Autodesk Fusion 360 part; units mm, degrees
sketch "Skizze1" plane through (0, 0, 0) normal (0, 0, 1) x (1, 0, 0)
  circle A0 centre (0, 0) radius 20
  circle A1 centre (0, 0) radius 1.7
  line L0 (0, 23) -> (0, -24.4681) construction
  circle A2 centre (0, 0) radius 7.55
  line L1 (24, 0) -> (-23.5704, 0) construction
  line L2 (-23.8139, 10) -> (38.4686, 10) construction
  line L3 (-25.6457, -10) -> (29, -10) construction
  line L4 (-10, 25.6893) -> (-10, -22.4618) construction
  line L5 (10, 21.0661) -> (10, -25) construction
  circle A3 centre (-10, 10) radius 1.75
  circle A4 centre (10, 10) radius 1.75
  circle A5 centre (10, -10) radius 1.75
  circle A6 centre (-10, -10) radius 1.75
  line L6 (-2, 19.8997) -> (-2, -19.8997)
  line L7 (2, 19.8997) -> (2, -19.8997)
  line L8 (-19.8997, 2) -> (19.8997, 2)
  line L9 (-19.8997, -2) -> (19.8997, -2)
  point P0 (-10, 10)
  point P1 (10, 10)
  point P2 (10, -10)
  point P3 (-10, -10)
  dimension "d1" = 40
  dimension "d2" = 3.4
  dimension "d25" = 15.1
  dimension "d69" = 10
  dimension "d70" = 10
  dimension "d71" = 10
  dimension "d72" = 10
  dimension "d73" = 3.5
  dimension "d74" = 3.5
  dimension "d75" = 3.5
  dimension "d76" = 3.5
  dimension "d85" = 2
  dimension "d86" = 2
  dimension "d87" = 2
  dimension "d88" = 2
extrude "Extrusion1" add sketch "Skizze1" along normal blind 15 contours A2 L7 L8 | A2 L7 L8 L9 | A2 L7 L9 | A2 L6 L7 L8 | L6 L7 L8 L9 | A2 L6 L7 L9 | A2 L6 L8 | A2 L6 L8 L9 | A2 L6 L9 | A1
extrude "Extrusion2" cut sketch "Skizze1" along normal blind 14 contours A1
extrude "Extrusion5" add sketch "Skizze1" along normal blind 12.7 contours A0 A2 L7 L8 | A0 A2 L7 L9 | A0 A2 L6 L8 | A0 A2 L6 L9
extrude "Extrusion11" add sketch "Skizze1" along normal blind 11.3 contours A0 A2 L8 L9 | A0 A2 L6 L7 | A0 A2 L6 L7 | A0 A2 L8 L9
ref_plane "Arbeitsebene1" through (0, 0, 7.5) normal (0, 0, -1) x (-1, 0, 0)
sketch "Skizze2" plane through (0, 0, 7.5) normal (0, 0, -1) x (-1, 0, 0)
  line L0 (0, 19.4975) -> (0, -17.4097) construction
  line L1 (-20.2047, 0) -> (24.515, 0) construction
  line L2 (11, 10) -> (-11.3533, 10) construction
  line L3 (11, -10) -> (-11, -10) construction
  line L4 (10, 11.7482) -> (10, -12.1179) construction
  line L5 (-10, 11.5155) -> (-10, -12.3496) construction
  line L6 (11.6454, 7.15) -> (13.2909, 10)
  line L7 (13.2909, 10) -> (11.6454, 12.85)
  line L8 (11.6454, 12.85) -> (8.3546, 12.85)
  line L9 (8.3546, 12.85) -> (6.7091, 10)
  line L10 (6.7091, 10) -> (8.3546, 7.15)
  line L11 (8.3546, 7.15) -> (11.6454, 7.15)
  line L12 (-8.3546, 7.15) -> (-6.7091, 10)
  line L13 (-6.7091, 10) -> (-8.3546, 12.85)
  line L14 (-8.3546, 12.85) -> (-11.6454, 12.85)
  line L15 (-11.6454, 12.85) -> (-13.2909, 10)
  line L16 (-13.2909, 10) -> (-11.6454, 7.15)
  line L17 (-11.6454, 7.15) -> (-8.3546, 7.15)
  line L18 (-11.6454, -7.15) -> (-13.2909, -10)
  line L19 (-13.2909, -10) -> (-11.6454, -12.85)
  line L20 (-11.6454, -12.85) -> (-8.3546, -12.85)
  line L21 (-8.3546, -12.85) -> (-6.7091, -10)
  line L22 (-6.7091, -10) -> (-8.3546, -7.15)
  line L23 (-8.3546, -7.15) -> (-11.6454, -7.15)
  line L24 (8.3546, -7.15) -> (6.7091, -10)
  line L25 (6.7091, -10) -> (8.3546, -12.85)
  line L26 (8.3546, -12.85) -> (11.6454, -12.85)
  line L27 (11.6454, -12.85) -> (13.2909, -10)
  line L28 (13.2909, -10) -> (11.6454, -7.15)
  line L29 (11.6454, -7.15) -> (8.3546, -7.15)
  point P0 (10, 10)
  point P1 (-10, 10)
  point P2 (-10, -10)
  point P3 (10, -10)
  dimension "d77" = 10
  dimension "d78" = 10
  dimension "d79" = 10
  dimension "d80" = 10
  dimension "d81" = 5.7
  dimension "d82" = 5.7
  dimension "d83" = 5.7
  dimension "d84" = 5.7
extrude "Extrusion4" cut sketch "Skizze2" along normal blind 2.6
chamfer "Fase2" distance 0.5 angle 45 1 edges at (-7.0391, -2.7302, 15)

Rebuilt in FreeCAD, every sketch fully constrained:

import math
import FreeCAD as App
import Part
import Sketcher

V = App.Vector
Q = App.Units.Quantity


def edges_at(feature, points):
    """Names of the edges that pass closest to the given points."""
    edges = feature.Shape.Edges
    near = lambda p: min(range(len(edges)), key=lambda i: edges[i].distToShape(Part.Vertex(*p))[0])
    return sorted({f"Edge{near(p) + 1}" for p in points})

doc = App.newDocument("Part")
body = doc.addObject("PartDesign::Body", "Body")

sketch1 = body.newObject("Sketcher::SketchObject", "Sketch")
sketch1.AttachmentSupport = (doc.getObject("XY_Plane"), [""])
sketch1.MapMode = "FlatFace"
sketch1.addGeometry(Part.Circle(V(0, 0, 0), V(0, 0, 1), 8), False)
sketch1.addConstraint([
    Sketcher.Constraint("Coincident", 0, 3, -1, 1),
    Sketcher.Constraint("Diameter", 0, Q("15.1 mm")),
])
pad1 = body.newObject("PartDesign::Pad", "Pad")
pad1.Profile = sketch1
pad1.Length = 15

sketch2 = body.newObject("Sketcher::SketchObject", "Sketch001")
sketch2.AttachmentSupport = (doc.getObject("XY_Plane"), [""])
sketch2.MapMode = "FlatFace"
sketch2.addGeometry(Part.Circle(V(0, 0, 0), V(0, 0, 1), 1.7), False)
sketch2.addConstraint([
    Sketcher.Constraint("Coincident", 0, 3, -1, 1),
    Sketcher.Constraint("Diameter", 0, Q("3.4 mm")),
])
pocket1 = body.newObject("PartDesign::Pocket", "Pocket")
pocket1.Profile = sketch2
pocket1.Length = 14
pocket1.Reversed = True

sketch3 = body.newObject("Sketcher::SketchObject", "Sketch002")
sketch3.AttachmentSupport = (doc.getObject("XY_Plane"), [""])
sketch3.MapMode = "FlatFace"
sketch3.addGeometry([
    Part.LineSegment(V(7.3, 2, 0), V(19.9, 2, 0)),
    Part.ArcOfCircle(Part.Circle(V(0, 0, 0), V(0, 0, 1), 20), math.radians(6), math.radians(84)),
    Part.LineSegment(V(2, 19.9, 0), V(2, 7.3, 0)),
    Part.ArcOfCircle(Part.Circle(V(0, 0, 0), V(0, 0, 1), 7.5), math.radians(15), math.radians(75)),
    Part.Circle(V(10, 10, 0), V(0, 0, 1), 1.8),
    Part.ArcOfCircle(Part.Circle(V(0, 0, 0), V(0, 0, 1), 20), math.radians(-84), math.radians(-6)),
    Part.LineSegment(V(19.9, -2, 0), V(7.3, -2, 0)),
    Part.ArcOfCircle(Part.Circle(V(0, 0, 0), V(0, 0, 1), 7.5), math.radians(-75), math.radians(-15)),
    Part.LineSegment(V(2, -7.3, 0), V(2, -19.9, 0)),
    Part.Circle(V(10, -10, 0), V(0, 0, 1), 1.8),
    Part.LineSegment(V(-2, 7.3, 0), V(-2, 19.9, 0)),
    Part.ArcOfCircle(Part.Circle(V(0, 0, 0), V(0, 0, 1), 20), math.radians(96), math.radians(174)),
    Part.LineSegment(V(-19.9, 2, 0), V(-7.3, 2, 0)),
    Part.ArcOfCircle(Part.Circle(V(0, 0, 0), V(0, 0, 1), 7.5), math.radians(105), math.radians(165)),
    Part.Circle(V(-10, 10, 0), V(0, 0, 1), 1.8),
    Part.ArcOfCircle(Part.Circle(V(0, 0, 0), V(0, 0, 1), 20), math.radians(-174), math.radians(-96)),
    Part.LineSegment(V(-2, -19.9, 0), V(-2, -7.3, 0)),
    Part.ArcOfCircle(Part.Circle(V(0, 0, 0), V(0, 0, 1), 7.5), math.radians(-165), math.radians(-105)),
    Part.LineSegment(V(-7.3, -2, 0), V(-19.9, -2, 0)),
    Part.Circle(V(-10, -10, 0), V(0, 0, 1), 1.8),
], False)
sketch3.addConstraint([
    Sketcher.Constraint("Coincident", 0, 2, 1, 1),
    Sketcher.Constraint("Coincident", 1, 2, 2, 1),
    Sketcher.Constraint("Coincident", 2, 2, 3, 2),
    Sketcher.Constraint("Coincident", 3, 1, 0, 1),
    Sketcher.Constraint("Coincident", 5, 2, 6, 1),
    Sketcher.Constraint("Coincident", 6, 2, 7, 2),
    Sketcher.Constraint("Coincident", 7, 1, 8, 1),
    Sketcher.Constraint("Coincident", 8, 2, 5, 1),
    Sketcher.Constraint("Coincident", 10, 2, 11, 1),
    Sketcher.Constraint("Coincident", 11, 2, 12, 1),
    Sketcher.Constraint("Coincident", 12, 2, 13, 2),
    Sketcher.Constraint("Coincident", 13, 1, 10, 1),
    Sketcher.Constraint("Coincident", 15, 2, 16, 1),
    Sketcher.Constraint("Coincident", 16, 2, 17, 2),
    Sketcher.Constraint("Coincident", 17, 1, 18, 1),
    Sketcher.Constraint("Coincident", 18, 2, 15, 1),
    Sketcher.Constraint("Horizontal", 0),
    Sketcher.Constraint("Vertical", 2),
    Sketcher.Constraint("Horizontal", 6),
    Sketcher.Constraint("Vertical", 8),
    Sketcher.Constraint("Vertical", 10),
    Sketcher.Constraint("Horizontal", 12),
    Sketcher.Constraint("Vertical", 16),
    Sketcher.Constraint("Horizontal", 18),
    Sketcher.Constraint("Coincident", 1, 3, -1, 1),
    Sketcher.Constraint("Coincident", 3, 3, -1, 1),
    Sketcher.Constraint("Coincident", 5, 3, -1, 1),
    Sketcher.Constraint("Coincident", 7, 3, -1, 1),
    Sketcher.Constraint("Coincident", 11, 3, -1, 1),
    Sketcher.Constraint("Coincident", 13, 3, -1, 1),
    Sketcher.Constraint("Coincident", 15, 3, -1, 1),
    Sketcher.Constraint("Coincident", 17, 3, -1, 1),
    Sketcher.Constraint("Equal", 1, 5),
    Sketcher.Constraint("Equal", 3, 7),
    Sketcher.Constraint("Equal", 4, 9),
    Sketcher.Constraint("Equal", 5, 11),
    Sketcher.Constraint("Equal", 7, 13),
    Sketcher.Constraint("Equal", 9, 14),
    Sketcher.Constraint("Equal", 11, 15),
    Sketcher.Constraint("Equal", 13, 17),
    Sketcher.Constraint("Equal", 14, 19),
    Sketcher.Constraint("Symmetric", 9, 3, 14, 3, -1, 1),
    Sketcher.Constraint("Symmetric", 4, 3, 19, 3, -1, 1),
    Sketcher.Constraint("Symmetric", 4, 3, 14, 3, -2),
    Sketcher.Constraint("Horizontal", 1, 2, 10, 2),
    Sketcher.Constraint("Horizontal", 3, 1, 11, 2),
    Sketcher.Constraint("Horizontal", 8, 2, 15, 2),
    Sketcher.Constraint("Horizontal", 6, 2, 17, 1),
    Sketcher.Constraint("Vertical", 0, 2, 5, 2),
    Sketcher.Constraint("Vertical", 2, 2, 7, 1),
    Sketcher.Constraint("Equal", 18, 2),
    Sketcher.Constraint("Radius", 1, Q("20 mm")),
    Sketcher.Constraint("Diameter", 4, Q("3.5 mm")),
    Sketcher.Constraint("Radius", 3, Q("7.55 mm")),
    Sketcher.Constraint("DistanceX", -1, 1, 4, 3, Q("10 mm")),
    Sketcher.Constraint("DistanceY", -1, 1, 4, 3, Q("10 mm")),
    Sketcher.Constraint("DistanceY", -1, 1, 0, 2, Q("2 mm")),
])
pad2 = body.newObject("PartDesign::Pad", "Pad001")
pad2.Profile = sketch3
pad2.Length = 12.7

sketch4 = body.newObject("Sketcher::SketchObject", "Sketch003")
sketch4.AttachmentSupport = (doc.getObject("XY_Plane"), [""])
sketch4.MapMode = "FlatFace"
sketch4.addGeometry([
    Part.ArcOfCircle(Part.Circle(V(0, 0, 0), V(0, 0, 1), 20), math.radians(-5.74), math.radians(5.74)),
    Part.LineSegment(V(19.9, 2, 0), V(7.3, 2, 0)),
    Part.ArcOfCircle(Part.Circle(V(0, 0, 0), V(0, 0, 1), 7.5), math.radians(-15), math.radians(15)),
    Part.LineSegment(V(7.3, -2, 0), V(19.9, -2, 0)),
    Part.LineSegment(V(2, 7.3, 0), V(2, 19.9, 0)),
    Part.ArcOfCircle(Part.Circle(V(0, 0, 0), V(0, 0, 1), 20), math.radians(84.26), math.radians(95.74)),
    Part.LineSegment(V(-2, 19.9, 0), V(-2, 7.3, 0)),
    Part.ArcOfCircle(Part.Circle(V(0, 0, 0), V(0, 0, 1), 7.5), math.radians(75), math.radians(105)),
    Part.ArcOfCircle(Part.Circle(V(0, 0, 0), V(0, 0, 1), 20), math.radians(-95.74), math.radians(-84.26)),
    Part.LineSegment(V(2, -19.9, 0), V(2, -7.3, 0)),
    Part.ArcOfCircle(Part.Circle(V(0, 0, 0), V(0, 0, 1), 7.5), math.radians(-105), math.radians(-75)),
    Part.LineSegment(V(-2, -7.3, 0), V(-2, -19.9, 0)),
    Part.LineSegment(V(-7.3, 2, 0), V(-19.9, 2, 0)),
    Part.ArcOfCircle(Part.Circle(V(0, 0, 0), V(0, 0, 1), 20), math.radians(174.26), math.radians(185.74)),
    Part.LineSegment(V(-19.9, -2, 0), V(-7.3, -2, 0)),
    Part.ArcOfCircle(Part.Circle(V(0, 0, 0), V(0, 0, 1), 7.5), math.radians(165), math.radians(195)),
], False)
sketch4.addConstraint([
    Sketcher.Constraint("Coincident", 0, 2, 1, 1),
    Sketcher.Constraint("Coincident", 1, 2, 2, 2),
    Sketcher.Constraint("Coincident", 2, 1, 3, 1),
    Sketcher.Constraint("Coincident", 3, 2, 0, 1),
    Sketcher.Constraint("Coincident", 4, 2, 5, 1),
    Sketcher.Constraint("Coincident", 5, 2, 6, 1),
    Sketcher.Constraint("Coincident", 6, 2, 7, 2),
    Sketcher.Constraint("Coincident", 7, 1, 4, 1),
    Sketcher.Constraint("Coincident", 8, 2, 9, 1),
    Sketcher.Constraint("Coincident", 9, 2, 10, 2),
    Sketcher.Constraint("Coincident", 10, 1, 11, 1),
    Sketcher.Constraint("Coincident", 11, 2, 8, 1),
    Sketcher.Constraint("Coincident", 12, 2, 13, 1),
    Sketcher.Constraint("Coincident", 13, 2, 14, 1),
    Sketcher.Constraint("Coincident", 14, 2, 15, 2),
    Sketcher.Constraint("Coincident", 15, 1, 12, 1),
    Sketcher.Constraint("Horizontal", 1),
    Sketcher.Constraint("Horizontal", 3),
    Sketcher.Constraint("Vertical", 4),
    Sketcher.Constraint("Vertical", 6),
    Sketcher.Constraint("Vertical", 9),
    Sketcher.Constraint("Vertical", 11),
    Sketcher.Constraint("Horizontal", 12),
    Sketcher.Constraint("Horizontal", 14),
    Sketcher.Constraint("Coincident", 0, 3, -1, 1),
    Sketcher.Constraint("Coincident", 2, 3, -1, 1),
    Sketcher.Constraint("Coincident", 5, 3, -1, 1),
    Sketcher.Constraint("Coincident", 7, 3, -1, 1),
    Sketcher.Constraint("Coincident", 8, 3, -1, 1),
    Sketcher.Constraint("Coincident", 10, 3, -1, 1),
    Sketcher.Constraint("Coincident", 13, 3, -1, 1),
    Sketcher.Constraint("Coincident", 15, 3, -1, 1),
    Sketcher.Constraint("Equal", 0, 5),
    Sketcher.Constraint("Equal", 2, 7),
    Sketcher.Constraint("Equal", 5, 8),
    Sketcher.Constraint("Equal", 7, 10),
    Sketcher.Constraint("Equal", 8, 13),
    Sketcher.Constraint("Equal", 10, 15),
    Sketcher.Constraint("Horizontal", 4, 2, 5, 2),
    Sketcher.Constraint("Horizontal", 9, 2, 10, 1),
    Sketcher.Constraint("Horizontal", 1, 2, 12, 2),
    Sketcher.Constraint("Horizontal", 3, 2, 13, 2),
    Sketcher.Constraint("Vertical", 1, 2, 2, 1),
    Sketcher.Constraint("Vertical", 7, 1, 8, 2),
    Sketcher.Constraint("Equal", 14, 4),
    Sketcher.Constraint("Radius", 0, Q("20 mm")),
    Sketcher.Constraint("Radius", 2, Q("7.55 mm")),
    Sketcher.Constraint("DistanceY", -1, 1, 0, 2, Q("2 mm")),
])
pad3 = body.newObject("PartDesign::Pad", "Pad002")
pad3.Profile = sketch4
pad3.Length = 11.3

sketch5 = body.newObject("Sketcher::SketchObject", "Sketch004")
sketch5.AttachmentSupport = (doc.getObject("XY_Plane"), [""])
sketch5.MapMode = "FlatFace"
sketch5.AttachmentOffset = App.Placement(V(0, 0, 7.5), App.Rotation())
sketch5.addGeometry([
    Part.LineSegment(V(-8.4, 7.2, 0), V(-11.6, 7.2, 0)),
    Part.LineSegment(V(-11.6, 7.2, 0), V(-13.3, 10, 0)),
    Part.LineSegment(V(-13.3, 10, 0), V(-11.6, 12.8, 0)),
    Part.LineSegment(V(-11.6, 12.8, 0), V(-8.4, 12.8, 0)),
    Part.LineSegment(V(-8.4, 12.8, 0), V(-6.7, 10, 0)),
    Part.LineSegment(V(-6.7, 10, 0), V(-8.4, 7.2, 0)),
    Part.LineSegment(V(11.6, 7.2, 0), V(8.4, 7.2, 0)),
    Part.LineSegment(V(8.4, 7.2, 0), V(6.7, 10, 0)),
    Part.LineSegment(V(6.7, 10, 0), V(8.4, 12.8, 0)),
    Part.LineSegment(V(8.4, 12.8, 0), V(11.6, 12.8, 0)),
    Part.LineSegment(V(11.6, 12.8, 0), V(13.3, 10, 0)),
    Part.LineSegment(V(13.3, 10, 0), V(11.6, 7.2, 0)),
    Part.LineSegment(V(8.4, -7.2, 0), V(11.6, -7.2, 0)),
    Part.LineSegment(V(11.6, -7.2, 0), V(13.3, -10, 0)),
    Part.LineSegment(V(13.3, -10, 0), V(11.6, -12.8, 0)),
    Part.LineSegment(V(11.6, -12.8, 0), V(8.4, -12.8, 0)),
    Part.LineSegment(V(8.4, -12.8, 0), V(6.7, -10, 0)),
    Part.LineSegment(V(6.7, -10, 0), V(8.4, -7.2, 0)),
    Part.LineSegment(V(-11.6, -7.2, 0), V(-8.4, -7.2, 0)),
    Part.LineSegment(V(-8.4, -7.2, 0), V(-6.7, -10, 0)),
    Part.LineSegment(V(-6.7, -10, 0), V(-8.4, -12.8, 0)),
    Part.LineSegment(V(-8.4, -12.8, 0), V(-11.6, -12.8, 0)),
    Part.LineSegment(V(-11.6, -12.8, 0), V(-13.3, -10, 0)),
    Part.LineSegment(V(-13.3, -10, 0), V(-11.6, -7.2, 0)),
], False)
sketch5.addConstraint([
    Sketcher.Constraint("Coincident", 0, 2, 1, 1),
    Sketcher.Constraint("Coincident", 1, 2, 2, 1),
    Sketcher.Constraint("Coincident", 2, 2, 3, 1),
    Sketcher.Constraint("Coincident", 3, 2, 4, 1),
    Sketcher.Constraint("Coincident", 4, 2, 5, 1),
    Sketcher.Constraint("Coincident", 5, 2, 0, 1),
    Sketcher.Constraint("Coincident", 6, 2, 7, 1),
    Sketcher.Constraint("Coincident", 7, 2, 8, 1),
    Sketcher.Constraint("Coincident", 8, 2, 9, 1),
    Sketcher.Constraint("Coincident", 9, 2, 10, 1),
    Sketcher.Constraint("Coincident", 10, 2, 11, 1),
    Sketcher.Constraint("Coincident", 11, 2, 6, 1),
    Sketcher.Constraint("Coincident", 12, 2, 13, 1),
    Sketcher.Constraint("Coincident", 13, 2, 14, 1),
    Sketcher.Constraint("Coincident", 14, 2, 15, 1),
    Sketcher.Constraint("Coincident", 15, 2, 16, 1),
    Sketcher.Constraint("Coincident", 16, 2, 17, 1),
    Sketcher.Constraint("Coincident", 17, 2, 12, 1),
    Sketcher.Constraint("Coincident", 18, 2, 19, 1),
    Sketcher.Constraint("Coincident", 19, 2, 20, 1),
    Sketcher.Constraint("Coincident", 20, 2, 21, 1),
    Sketcher.Constraint("Coincident", 21, 2, 22, 1),
    Sketcher.Constraint("Coincident", 22, 2, 23, 1),
    Sketcher.Constraint("Coincident", 23, 2, 18, 1),
    Sketcher.Constraint("Horizontal", 0),
    Sketcher.Constraint("Horizontal", 3),
    Sketcher.Constraint("Horizontal", 6),
    Sketcher.Constraint("Horizontal", 9),
    Sketcher.Constraint("Horizontal", 12),
    Sketcher.Constraint("Horizontal", 15),
    Sketcher.Constraint("Horizontal", 18),
    Sketcher.Constraint("Horizontal", 21),
    Sketcher.Constraint("Symmetric", 0, 2, 12, 2, -1, 1),
    Sketcher.Constraint("Symmetric", 1, 2, 13, 2, -1, 1),
    Sketcher.Constraint("Symmetric", 2, 2, 14, 2, -1, 1),
    Sketcher.Constraint("Symmetric", 4, 2, 16, 2, -1, 1),
    Sketcher.Constraint("Symmetric", 6, 2, 18, 2, -1, 1),
    Sketcher.Constraint("Symmetric", 7, 2, 19, 2, -1, 1),
    Sketcher.Constraint("Symmetric", 8, 2, 20, 2, -1, 1),
    Sketcher.Constraint("Symmetric", 10, 2, 22, 2, -1, 1),
    Sketcher.Constraint("Symmetric", 5, 2, 6, 2, -2),
    Sketcher.Constraint("Symmetric", 4, 2, 7, 2, -2),
    Sketcher.Constraint("Symmetric", 3, 2, 8, 2, -2),
    Sketcher.Constraint("Symmetric", 1, 2, 10, 2, -2),
    Sketcher.Constraint("Parallel", 1, 4),
    Sketcher.Constraint("Parallel", 2, 5),
    Sketcher.Constraint("Parallel", 4, 7),
    Sketcher.Constraint("Parallel", 7, 10),
    Sketcher.Constraint("Parallel", 8, 11),
    Sketcher.Constraint("Parallel", 13, 16),
    Sketcher.Constraint("Parallel", 14, 17),
    Sketcher.Constraint("Parallel", 19, 22),
    Sketcher.Constraint("Parallel", 20, 23),
    Sketcher.Constraint("Horizontal", 1, 2, 4, 2),
    Sketcher.Constraint("Vertical", 0, 2, 2, 2),
    Sketcher.Constraint("DistanceY", -1, 1, 1, 2, Q("10 mm")),
    Sketcher.Constraint("DistanceY", 0, 2, 2, 2, Q("5.7 mm")),
    Sketcher.Constraint("Angle", 1, Q("120.0008 deg")),
    Sketcher.Constraint("DistanceX", 0, 2, 6, 2, Q("20 mm")),
    Sketcher.Constraint("DistanceX", 0, 2, 0, 1, Q("3.2908 mm")),
])
pocket2 = body.newObject("PartDesign::Pocket", "Pocket001")
pocket2.Profile = sketch5
pocket2.Length = 2.6
doc.recompute()

chamfer = body.newObject("PartDesign::Chamfer", "Chamfer")
chamfer.Base = (pocket2, edges_at(pocket2, [(-7.039, -2.73, 15)]))
chamfer.Size = 0.5

doc.recompute()
